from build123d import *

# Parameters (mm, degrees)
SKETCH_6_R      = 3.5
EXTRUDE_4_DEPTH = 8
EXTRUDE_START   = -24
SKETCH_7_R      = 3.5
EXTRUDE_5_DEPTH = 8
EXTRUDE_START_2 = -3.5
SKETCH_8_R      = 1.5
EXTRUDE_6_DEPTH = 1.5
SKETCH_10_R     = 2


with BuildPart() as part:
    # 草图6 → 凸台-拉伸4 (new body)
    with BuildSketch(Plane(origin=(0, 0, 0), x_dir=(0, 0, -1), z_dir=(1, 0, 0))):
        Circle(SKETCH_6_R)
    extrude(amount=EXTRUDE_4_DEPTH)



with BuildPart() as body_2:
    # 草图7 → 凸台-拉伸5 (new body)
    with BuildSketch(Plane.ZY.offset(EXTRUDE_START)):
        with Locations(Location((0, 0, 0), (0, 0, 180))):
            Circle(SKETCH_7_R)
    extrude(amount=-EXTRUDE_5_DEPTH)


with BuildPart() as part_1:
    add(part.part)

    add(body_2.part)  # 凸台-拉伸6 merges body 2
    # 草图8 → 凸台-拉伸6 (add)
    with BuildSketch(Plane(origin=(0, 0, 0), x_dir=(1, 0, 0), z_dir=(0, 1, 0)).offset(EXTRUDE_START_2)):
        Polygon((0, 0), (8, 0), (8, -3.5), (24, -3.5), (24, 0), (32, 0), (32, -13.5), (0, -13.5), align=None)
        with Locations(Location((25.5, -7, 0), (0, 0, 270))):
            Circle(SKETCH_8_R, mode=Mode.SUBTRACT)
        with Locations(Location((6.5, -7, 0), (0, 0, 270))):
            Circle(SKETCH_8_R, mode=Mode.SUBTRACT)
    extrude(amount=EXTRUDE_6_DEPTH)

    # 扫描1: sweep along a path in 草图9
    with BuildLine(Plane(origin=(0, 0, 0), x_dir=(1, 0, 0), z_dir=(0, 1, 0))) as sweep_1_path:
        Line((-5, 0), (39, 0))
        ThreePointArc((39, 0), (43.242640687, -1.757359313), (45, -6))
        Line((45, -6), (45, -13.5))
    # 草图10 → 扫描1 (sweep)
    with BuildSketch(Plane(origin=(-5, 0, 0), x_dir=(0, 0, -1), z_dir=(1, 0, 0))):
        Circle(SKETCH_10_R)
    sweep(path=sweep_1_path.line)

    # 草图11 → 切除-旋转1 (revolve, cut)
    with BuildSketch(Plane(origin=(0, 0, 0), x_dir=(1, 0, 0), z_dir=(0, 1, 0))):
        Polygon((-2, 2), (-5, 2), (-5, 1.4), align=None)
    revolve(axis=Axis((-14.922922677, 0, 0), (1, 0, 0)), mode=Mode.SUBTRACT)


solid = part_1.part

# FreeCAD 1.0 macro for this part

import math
import FreeCAD as App
import Part
import Sketcher

V = App.Vector
Q = App.Units.Quantity


def add_polygon(sketch, points):
    """Adds a closed chain of lines whose ends are joined by coincident constraints."""
    first, n = sketch.GeometryCount, len(points)
    for a, b in zip(points, points[1:] + points[:1]):
        sketch.addGeometry(Part.LineSegment(App.Vector(*a, 0), App.Vector(*b, 0)), False)
    for i in range(n):
        sketch.addConstraint(Sketcher.Constraint("Coincident", first + i, 2, first + (i + 1) % n, 1))

doc = App.newDocument("Part")
body = doc.addObject("PartDesign::Body", "Body")

sketch1 = body.newObject("Sketcher::SketchObject", "Sketch")
sketch1.AttachmentSupport = (doc.getObject("YZ_Plane"), [""])
sketch1.MapMode = "FlatFace"
sketch1.addGeometry(Part.Circle(V(0, 0, 0), V(0, 0, 1), 3.5), False)
sketch1.addConstraint([
    Sketcher.Constraint("Coincident", 0, 3, -1, 1),
    Sketcher.Constraint("Diameter", 0, Q("7 mm")),
])
pad1 = body.newObject("PartDesign::Pad", "Pad")
pad1.Profile = sketch1
pad1.Length = 8
body2 = doc.addObject("PartDesign::Body", "Body001")

sketch2 = body2.newObject("Sketcher::SketchObject", "Sketch001")
sketch2.AttachmentSupport = (doc.getObject("YZ_Plane001"), [""])
sketch2.MapMode = "FlatFace"
sketch2.AttachmentOffset = App.Placement(V(0, 0, 24), App.Rotation())
sketch2.addGeometry(Part.Circle(V(0, 0, 0), V(0, 0, 1), 3.5), False)
sketch2.addConstraint([
    Sketcher.Constraint("Coincident", 0, 3, -1, 1),
    Sketcher.Constraint("Diameter", 0, Q("7 mm")),
])
pad2 = body2.newObject("PartDesign::Pad", "Pad001")
pad2.Profile = sketch2
pad2.Length = 8
body.AllowCompound = True
doc.recompute()

boolean = body.newObject("PartDesign::Boolean", "Boolean")
boolean.Type = "Fuse"
boolean.addObjects([body2])

sketch3 = body.newObject("Sketcher::SketchObject", "Sketch002")
sketch3.AttachmentSupport = (doc.getObject("XZ_Plane"), [""])
sketch3.MapMode = "FlatFace"
sketch3.AttachmentOffset = App.Placement(V(0, 0, 3.5), App.Rotation())
add_polygon(sketch3, [(8, 0), (0, 0), (0, 13.5), (32, 13.5), (32, 0), (24, 0), (24, 3.5), (8, 3.5)])
sketch3.addGeometry(Part.Circle(V(25.5, 7, 0), V(0, 0, 1), 1.5), False)
sketch3.addGeometry(Part.Circle(V(6.5, 7, 0), V(0, 0, 1), 1.5), False)
sketch3.addConstraint([
    Sketcher.Constraint("Horizontal", 0),
    Sketcher.Constraint("Vertical", 1),
    Sketcher.Constraint("Horizontal", 2),
    Sketcher.Constraint("Vertical", 3),
    Sketcher.Constraint("Horizontal", 4),
    Sketcher.Constraint("Vertical", 5),
    Sketcher.Constraint("Horizontal", 6),
    Sketcher.Constraint("Vertical", 7),
    Sketcher.Constraint("Coincident", 0, 2, -1, 1),
    Sketcher.Constraint("Equal", 8, 9),
    Sketcher.Constraint("PointOnObject", 3, 2, -1),
    Sketcher.Constraint("Horizontal", 8, 3, 9, 3),
    Sketcher.Constraint("Equal", 0, 4),
    Sketcher.Constraint("Diameter", 8, Q("3 mm")),
    Sketcher.Constraint("DistanceX", 0, 2, 0, 1, Q("8 mm")),
    Sketcher.Constraint("DistanceX", 2, 1, 2, 2, Q("32 mm")),
    Sketcher.Constraint("DistanceY", 1, 1, 1, 2, Q("13.5 mm")),
    Sketcher.Constraint("DistanceY", 5, 1, 5, 2, Q("3.5 mm")),
    Sketcher.Constraint("DistanceY", -1, 1, 8, 3, Q("7 mm")),
    Sketcher.Constraint("DistanceX", 9, 3, 8, 3, Q("19 mm")),
    Sketcher.Constraint("DistanceX", -1, 1, 8, 3, Q("25.5 mm")),
])
pad3 = body.newObject("PartDesign::Pad", "Pad002")
pad3.Profile = sketch3
pad3.Length = 1.5
pad3.Reversed = True

sketch4 = body.newObject("Sketcher::SketchObject", "Sketch003")
sketch4.AttachmentSupport = (doc.getObject("YZ_Plane"), [""])
sketch4.MapMode = "FlatFace"
sketch4.AttachmentOffset = App.Placement(V(0, 0, -5), App.Rotation())
sketch4.addGeometry(Part.Circle(V(0, 0, 0), V(0, 0, 1), 2), False)
sketch4.addConstraint([
    Sketcher.Constraint("Coincident", 0, 3, -1, 1),
    Sketcher.Constraint("Diameter", 0, Q("4 mm")),
])

sketch5 = body.newObject("Sketcher::SketchObject", "Sketch004")
sketch5.AttachmentSupport = (doc.getObject("XZ_Plane"), [""])
sketch5.MapMode = "FlatFace"
sketch5.addGeometry([
    Part.LineSegment(V(-5, 0, 0), V(39, 0, 0)),
    Part.ArcOfCircle(Part.Circle(V(39, 6, 0), V(0, 0, 1), 6), math.radians(-90), math.radians(0)),
    Part.LineSegment(V(45, 6, 0), V(45, 13.5, 0)),
], False)
sketch5.addConstraint([
    Sketcher.Constraint("Tangent", 0, 2, 1, 1),
    Sketcher.Constraint("Tangent", 1, 2, 2, 1),
    Sketcher.Constraint("Horizontal", 0),
    Sketcher.Constraint("Vertical", 2),
    Sketcher.Constraint("PointOnObject", 0, 1, -1),
    Sketcher.Constraint("Radius", 1, Q("6 mm")),
    Sketcher.Constraint("DistanceX", 0, 1, 0, 2, Q("44 mm")),
    Sketcher.Constraint("DistanceY", 2, 1, 2, 2, Q("7.5 mm")),
    Sketcher.Constraint("DistanceX", -1, 1, 1, 3, Q("39 mm")),
])
doc.recompute()

additivepipe = body.newObject("PartDesign::AdditivePipe", "AdditivePipe")
additivepipe.Profile = sketch4
additivepipe.Spine = (sketch5, ["Edge1", "Edge2", "Edge3"])

sketch6 = body.newObject("Sketcher::SketchObject", "Sketch005")
sketch6.AttachmentSupport = (doc.getObject("XZ_Plane"), [""])
sketch6.MapMode = "FlatFace"
add_polygon(sketch6, [(-2, -2), (-5, -2), (-5, -1.4)])
sketch6.addConstraint([
    Sketcher.Constraint("Horizontal", 0),
    Sketcher.Constraint("Vertical", 1),
    Sketcher.Constraint("DistanceX", 0, 2, 0, 1, Q("3 mm")),
    Sketcher.Constraint("DistanceY", 1, 1, 1, 2, Q("0.6 mm")),
    Sketcher.Constraint("DistanceX", 0, 2, -1, 1, Q("5 mm")),
    Sketcher.Constraint("DistanceY", 0, 2, -1, 1, Q("2 mm")),
])
groove = body.newObject("PartDesign::Groove", "Groove")
groove.Profile = sketch6
groove.ReferenceAxis = (sketch6, ["H_Axis"])
groove.Angle = 360

doc.recompute()
